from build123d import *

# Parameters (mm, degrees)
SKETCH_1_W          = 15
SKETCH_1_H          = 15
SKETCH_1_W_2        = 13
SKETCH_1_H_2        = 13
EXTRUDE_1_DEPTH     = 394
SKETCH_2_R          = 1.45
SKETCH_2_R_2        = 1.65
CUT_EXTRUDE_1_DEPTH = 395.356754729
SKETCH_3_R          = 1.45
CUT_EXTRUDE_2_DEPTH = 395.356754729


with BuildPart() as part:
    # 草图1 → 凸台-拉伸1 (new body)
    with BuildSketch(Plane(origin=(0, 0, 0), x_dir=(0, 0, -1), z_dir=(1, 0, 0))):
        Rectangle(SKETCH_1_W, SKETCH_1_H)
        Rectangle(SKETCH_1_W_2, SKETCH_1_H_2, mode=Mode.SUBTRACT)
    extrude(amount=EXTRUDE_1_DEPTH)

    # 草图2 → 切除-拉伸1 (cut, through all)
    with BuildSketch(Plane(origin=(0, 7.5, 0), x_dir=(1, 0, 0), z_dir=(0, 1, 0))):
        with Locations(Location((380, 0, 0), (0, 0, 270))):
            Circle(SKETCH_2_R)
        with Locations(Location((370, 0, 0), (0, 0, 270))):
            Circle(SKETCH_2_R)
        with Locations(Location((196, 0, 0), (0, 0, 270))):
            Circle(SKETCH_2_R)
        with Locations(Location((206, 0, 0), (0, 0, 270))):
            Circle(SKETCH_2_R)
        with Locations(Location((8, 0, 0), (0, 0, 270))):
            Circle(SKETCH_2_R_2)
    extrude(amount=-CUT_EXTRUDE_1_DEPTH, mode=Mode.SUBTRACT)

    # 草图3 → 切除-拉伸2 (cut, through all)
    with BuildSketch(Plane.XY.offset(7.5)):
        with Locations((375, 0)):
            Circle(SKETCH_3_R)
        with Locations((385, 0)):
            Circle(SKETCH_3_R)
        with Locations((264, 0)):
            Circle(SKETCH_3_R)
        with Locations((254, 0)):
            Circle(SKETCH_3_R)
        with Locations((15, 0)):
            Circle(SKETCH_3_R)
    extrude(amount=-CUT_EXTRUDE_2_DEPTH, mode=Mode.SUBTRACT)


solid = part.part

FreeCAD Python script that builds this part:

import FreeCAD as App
import Part
import Sketcher
from FreeCAD import Vector


def add_polygon(sketch, points):
    """Adds a closed chain of lines whose ends are joined by coincident constraints."""
    first, n = sketch.GeometryCount, len(points)
    for a, b in zip(points, points[1:] + points[:1]):
        sketch.addGeometry(Part.LineSegment(App.Vector(*a, 0), App.Vector(*b, 0)), False)
    for i in range(n):
        sketch.addConstraint(Sketcher.Constraint("Coincident", first + i, 2, first + (i + 1) % n, 1))

doc = App.newDocument("Part")
body = doc.addObject("PartDesign::Body", "Body")

# Sketch on YZ plane
sketch1 = doc.addObject("Sketcher::SketchObject", "Sketch")
body.addObject(sketch1)
sketch1.AttachmentSupport = (doc.YZ_Plane, [""])
sketch1.MapMode = "FlatFace"
add_polygon(sketch1, [(7.5, 7.5), (-7.5, 7.5), (-7.5, -7.5), (7.5, -7.5)])  # lines 0-3
add_polygon(sketch1, [(-6.5, -6.5), (-6.5, 6.5), (6.5, 6.5), (6.5, -6.5)])  # lines 4-7
sketch1.addConstraint([
    Sketcher.Constraint("Horizontal", 0),
    Sketcher.Constraint("Vertical", 1),
    Sketcher.Constraint("Horizontal", 2),
    Sketcher.Constraint("Vertical", 3),
    Sketcher.Constraint("Vertical", 4),
    Sketcher.Constraint("Horizontal", 5),
    Sketcher.Constraint("Vertical", 6),
    Sketcher.Constraint("Horizontal", 7),
    Sketcher.Constraint("Symmetric", 0, 2, 2, 2, -1, 1),
    Sketcher.Constraint("Symmetric", 4, 2, 6, 2, -1, 1),
    Sketcher.Constraint("Equal", 2, 1),
    Sketcher.Constraint("Equal", 7, 4),
    Sketcher.Constraint("DistanceX", 0, 2, 0, 1, 15.0),
    Sketcher.Constraint("DistanceX", 5, 1, 5, 2, 13.0),
])
pad1 = doc.addObject("PartDesign::Pad", "Pad")
body.addObject(pad1)
pad1.Profile = sketch1
pad1.Length = 394

# Sketch on XZ plane
sketch2 = doc.addObject("Sketcher::SketchObject", "Sketch001")
body.addObject(sketch2)
sketch2.AttachmentSupport = (doc.XZ_Plane, [""])
sketch2.MapMode = "FlatFace"
sketch2.AttachmentOffset = App.Placement(Vector(0, 0, -7.5), App.Rotation())
sketch2.addGeometry([
    Part.Circle(Vector(380, 0, 0), Vector(0, 0, 1), 1.45),  # 0
    Part.Circle(Vector(370, 0, 0), Vector(0, 0, 1), 1.45),  # 1
    Part.Circle(Vector(196, 0, 0), Vector(0, 0, 1), 1.45),  # 2
    Part.Circle(Vector(206, 0, 0), Vector(0, 0, 1), 1.45),  # 3
    Part.Circle(Vector(8, 0, 0), Vector(0, 0, 1), 1.65),  # 4
], False)
sketch2.addConstraint([
    Sketcher.Constraint("Equal", 0, 1),
    Sketcher.Constraint("Equal", 1, 2),
    Sketcher.Constraint("Equal", 2, 3),
    Sketcher.Constraint("PointOnObject", 0, 3, -1),
    Sketcher.Constraint("PointOnObject", 1, 3, -1),
    Sketcher.Constraint("PointOnObject", 2, 3, -1),
    Sketcher.Constraint("PointOnObject", 3, 3, -1),
    Sketcher.Constraint("PointOnObject", 4, 3, -1),
    Sketcher.Constraint("Diameter", 0, 2.9),
    Sketcher.Constraint("Diameter", 4, 3.3),
    Sketcher.Constraint("DistanceX", -1, 1, 0, 3, 380.0),
    Sketcher.Constraint("DistanceX", -1, 1, 1, 3, 370.0),
    Sketcher.Constraint("DistanceX", -1, 1, 2, 3, 196.0),
    Sketcher.Constraint("DistanceX", -1, 1, 3, 3, 206.0),
    Sketcher.Constraint("DistanceX", -1, 1, 4, 3, 8.0),
])
pocket1 = doc.addObject("PartDesign::Pocket", "Pocket")
body.addObject(pocket1)
pocket1.Profile = sketch2
pocket1.Type = "ThroughAll"
pocket1.Reversed = True

# Sketch on XY plane
sketch3 = doc.addObject("Sketcher::SketchObject", "Sketch002")
body.addObject(sketch3)
sketch3.AttachmentSupport = (doc.XY_Plane, [""])
sketch3.MapMode = "FlatFace"
sketch3.AttachmentOffset = App.Placement(Vector(0, 0, 7.5), App.Rotation())
sketch3.addGeometry([
    Part.Circle(Vector(375, 0, 0), Vector(0, 0, 1), 1.45),  # 0
    Part.Circle(Vector(385, 0, 0), Vector(0, 0, 1), 1.45),  # 1
    Part.Circle(Vector(264, 0, 0), Vector(0, 0, 1), 1.45),  # 2
    Part.Circle(Vector(254, 0, 0), Vector(0, 0, 1), 1.45),  # 3
    Part.Circle(Vector(15, 0, 0), Vector(0, 0, 1), 1.45),  # 4
], False)
sketch3.addConstraint([
    Sketcher.Constraint("Equal", 0, 1),
    Sketcher.Constraint("Equal", 1, 2),
    Sketcher.Constraint("Equal", 2, 3),
    Sketcher.Constraint("Equal", 3, 4),
    Sketcher.Constraint("PointOnObject", 0, 3, -1),
    Sketcher.Constraint("PointOnObject", 1, 3, -1),
    Sketcher.Constraint("PointOnObject", 2, 3, -1),
    Sketcher.Constraint("PointOnObject", 3, 3, -1),
    Sketcher.Constraint("PointOnObject", 4, 3, -1),
    Sketcher.Constraint("Diameter", 0, 2.9),
    Sketcher.Constraint("DistanceX", -1, 1, 0, 3, 375.0),
    Sketcher.Constraint("DistanceX", -1, 1, 1, 3, 385.0),
    Sketcher.Constraint("DistanceX", -1, 1, 2, 3, 264.0),
    Sketcher.Constraint("DistanceX", -1, 1, 3, 3, 254.0),
    Sketcher.Constraint("DistanceX", -1, 1, 4, 3, 15.0),
])
pocket2 = doc.addObject("PartDesign::Pocket", "Pocket001")
body.addObject(pocket2)
pocket2.Profile = sketch3
pocket2.Type = "ThroughAll"

doc.recompute()
